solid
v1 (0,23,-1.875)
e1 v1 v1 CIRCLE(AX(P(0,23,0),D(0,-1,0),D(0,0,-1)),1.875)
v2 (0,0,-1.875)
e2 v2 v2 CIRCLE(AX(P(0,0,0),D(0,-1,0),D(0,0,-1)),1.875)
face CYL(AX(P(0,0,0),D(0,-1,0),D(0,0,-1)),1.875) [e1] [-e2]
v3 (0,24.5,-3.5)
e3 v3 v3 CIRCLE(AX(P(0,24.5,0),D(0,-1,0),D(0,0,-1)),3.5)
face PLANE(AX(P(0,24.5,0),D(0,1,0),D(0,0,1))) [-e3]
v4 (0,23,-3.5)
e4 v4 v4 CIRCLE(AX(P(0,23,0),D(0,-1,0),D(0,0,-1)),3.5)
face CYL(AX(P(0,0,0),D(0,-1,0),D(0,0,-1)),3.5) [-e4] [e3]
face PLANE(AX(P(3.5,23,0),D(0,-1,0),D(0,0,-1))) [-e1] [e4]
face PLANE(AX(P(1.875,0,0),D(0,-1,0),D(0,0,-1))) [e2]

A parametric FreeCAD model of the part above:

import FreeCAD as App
import Part
import Sketcher
Q = App.Units.Quantity

doc = App.newDocument("Part")
params = doc.addObject("Spreadsheet::Sheet", "Params")
for row, (alias, value) in enumerate([
    ("sketch1_height", "23 mm"),
    ("sketch1_width", "3.5 mm"),
    ("sketch1_height2", "24.5 mm"),
    ("revolution_angle", "360 deg"),
], start=1):
    params.set(f"A{row}", alias)
    params.set(f"B{row}", "=" + value)
    params.setAlias(f"B{row}", alias)

body = doc.addObject("PartDesign::Body", "Body")

# Sketch on XY plane
sketch1 = body.newObject("Sketcher::SketchObject", "Sketch")
sketch1.AttachmentSupport = (doc.getObject("XY_Plane"), [""])
sketch1.MapMode = "FlatFace"
sketch1.addGeometry([
    Part.LineSegment(App.Vector(0, 24.5, 0), App.Vector(0, 0, 0)),  # 0
    Part.LineSegment(App.Vector(0, 0, 0), App.Vector(1.875, 0, 0)),  # 1
    Part.LineSegment(App.Vector(1.875, 0, 0), App.Vector(1.875, 23, 0)),  # 2
    Part.LineSegment(App.Vector(1.875, 23, 0), App.Vector(3.5, 23, 0)),  # 3
    Part.LineSegment(App.Vector(3.5, 23, 0), App.Vector(3.5, 24.5, 0)),  # 4
    Part.LineSegment(App.Vector(3.5, 24.5, 0), App.Vector(0, 24.5, 0)),  # 5
], False)
sketch1.addConstraint([
    Sketcher.Constraint("Coincident", 0, 2, 1, 1),
    Sketcher.Constraint("Coincident", 1, 2, 2, 1),
    Sketcher.Constraint("Coincident", 2, 2, 3, 1),
    Sketcher.Constraint("Coincident", 3, 2, 4, 1),
    Sketcher.Constraint("Coincident", 4, 2, 5, 1),
    Sketcher.Constraint("Coincident", 5, 2, 0, 1),
    Sketcher.Constraint("Vertical", 0),
    Sketcher.Constraint("Horizontal", 1),
    Sketcher.Constraint("Vertical", 2),
    Sketcher.Constraint("Horizontal", 3),
    Sketcher.Constraint("Vertical", 4),
    Sketcher.Constraint("Horizontal", 5),
    Sketcher.Constraint("Coincident", 0, 2, -1, 1),
    Sketcher.Constraint("DistanceY", 2, 1, 2, 2, Q("23 mm")),
    Sketcher.Constraint("DistanceX", 5, 2, 5, 1, Q("3.5 mm")),
    Sketcher.Constraint("DistanceY", 0, 2, 0, 1, Q("24.5 mm")),
    Sketcher.Constraint("DistanceX", 1, 1, 1, 2, Q("1.875 mm")),
])
sketch1.setExpression("Constraints[13]", "Params.sketch1_height")
sketch1.setExpression("Constraints[14]", "Params.sketch1_width")
sketch1.setExpression("Constraints[15]", "Params.sketch1_height2")
revolution = body.newObject("PartDesign::Revolution", "Revolution")
revolution.Profile = sketch1
revolution.ReferenceAxis = (sketch1, ["V_Axis"])
revolution.setExpression("Angle", "Params.revolution_angle")

doc.recompute()
